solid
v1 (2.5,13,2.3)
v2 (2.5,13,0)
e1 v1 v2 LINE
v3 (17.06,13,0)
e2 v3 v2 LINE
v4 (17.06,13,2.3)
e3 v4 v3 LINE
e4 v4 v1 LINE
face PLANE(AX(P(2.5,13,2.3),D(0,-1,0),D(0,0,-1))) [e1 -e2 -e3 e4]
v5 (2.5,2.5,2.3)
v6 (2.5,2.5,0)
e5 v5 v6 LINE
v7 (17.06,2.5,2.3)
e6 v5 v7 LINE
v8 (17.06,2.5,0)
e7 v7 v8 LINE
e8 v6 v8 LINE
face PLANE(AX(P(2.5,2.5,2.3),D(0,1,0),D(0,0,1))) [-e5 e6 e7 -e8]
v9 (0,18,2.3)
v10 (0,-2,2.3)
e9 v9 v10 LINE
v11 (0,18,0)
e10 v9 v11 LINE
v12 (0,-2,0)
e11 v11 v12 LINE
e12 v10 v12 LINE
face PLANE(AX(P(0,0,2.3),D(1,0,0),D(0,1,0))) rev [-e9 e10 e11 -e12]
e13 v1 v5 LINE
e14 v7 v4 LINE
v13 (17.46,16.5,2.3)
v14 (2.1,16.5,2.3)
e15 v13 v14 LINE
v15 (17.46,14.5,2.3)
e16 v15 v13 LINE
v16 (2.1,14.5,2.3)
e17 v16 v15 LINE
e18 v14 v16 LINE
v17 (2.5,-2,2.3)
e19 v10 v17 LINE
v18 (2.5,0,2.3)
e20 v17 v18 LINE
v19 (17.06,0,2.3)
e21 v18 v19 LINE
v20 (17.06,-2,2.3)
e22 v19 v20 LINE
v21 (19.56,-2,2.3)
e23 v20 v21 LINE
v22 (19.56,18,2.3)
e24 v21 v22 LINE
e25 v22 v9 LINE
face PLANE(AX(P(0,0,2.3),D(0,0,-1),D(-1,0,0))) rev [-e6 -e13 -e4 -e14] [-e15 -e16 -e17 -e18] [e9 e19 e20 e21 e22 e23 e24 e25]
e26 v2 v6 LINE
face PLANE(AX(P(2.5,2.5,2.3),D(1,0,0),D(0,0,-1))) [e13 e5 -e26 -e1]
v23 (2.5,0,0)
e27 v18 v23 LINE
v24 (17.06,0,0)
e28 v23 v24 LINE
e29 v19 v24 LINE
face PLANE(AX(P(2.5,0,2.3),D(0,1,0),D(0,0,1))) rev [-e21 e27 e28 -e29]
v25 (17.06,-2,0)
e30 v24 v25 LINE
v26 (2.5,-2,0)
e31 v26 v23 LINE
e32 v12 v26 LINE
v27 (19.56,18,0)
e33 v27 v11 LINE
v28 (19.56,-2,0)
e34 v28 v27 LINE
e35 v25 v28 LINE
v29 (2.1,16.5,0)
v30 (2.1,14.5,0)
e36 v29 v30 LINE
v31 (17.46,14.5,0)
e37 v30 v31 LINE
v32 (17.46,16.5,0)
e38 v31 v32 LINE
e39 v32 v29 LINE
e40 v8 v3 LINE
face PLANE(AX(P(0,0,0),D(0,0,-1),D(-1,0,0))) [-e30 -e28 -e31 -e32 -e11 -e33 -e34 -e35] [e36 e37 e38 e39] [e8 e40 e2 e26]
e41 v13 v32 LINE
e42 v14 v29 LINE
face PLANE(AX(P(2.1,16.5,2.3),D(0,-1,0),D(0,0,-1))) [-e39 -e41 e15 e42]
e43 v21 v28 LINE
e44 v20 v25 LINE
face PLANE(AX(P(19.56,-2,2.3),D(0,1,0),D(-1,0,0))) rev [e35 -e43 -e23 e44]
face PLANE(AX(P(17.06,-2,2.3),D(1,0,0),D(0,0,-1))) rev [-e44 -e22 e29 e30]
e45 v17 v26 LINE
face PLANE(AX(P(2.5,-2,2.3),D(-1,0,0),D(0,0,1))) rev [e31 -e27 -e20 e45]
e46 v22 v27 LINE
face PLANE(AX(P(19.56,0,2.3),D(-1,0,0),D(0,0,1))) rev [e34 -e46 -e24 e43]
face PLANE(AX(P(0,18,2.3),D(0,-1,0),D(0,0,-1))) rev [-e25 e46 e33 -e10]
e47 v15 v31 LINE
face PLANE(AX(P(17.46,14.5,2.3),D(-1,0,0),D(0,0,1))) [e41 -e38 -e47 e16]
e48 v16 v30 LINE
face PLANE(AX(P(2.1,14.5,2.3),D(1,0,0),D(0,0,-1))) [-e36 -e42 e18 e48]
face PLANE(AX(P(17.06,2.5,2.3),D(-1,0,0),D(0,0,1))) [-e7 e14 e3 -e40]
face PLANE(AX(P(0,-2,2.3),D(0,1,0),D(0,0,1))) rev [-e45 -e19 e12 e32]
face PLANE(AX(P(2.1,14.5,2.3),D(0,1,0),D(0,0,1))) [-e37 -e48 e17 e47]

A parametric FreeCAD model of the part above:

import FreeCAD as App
import Part
import Sketcher

V = App.Vector
Q = App.Units.Quantity


def add_polygon(sketch, points):
    """Adds a closed chain of lines whose ends are joined by coincident constraints."""
    first, n = sketch.GeometryCount, len(points)
    for a, b in zip(points, points[1:] + points[:1]):
        sketch.addGeometry(Part.LineSegment(App.Vector(*a, 0), App.Vector(*b, 0)), False)
    for i in range(n):
        sketch.addConstraint(Sketcher.Constraint("Coincident", first + i, 2, first + (i + 1) % n, 1))

doc = App.newDocument("Part")
body = doc.addObject("PartDesign::Body", "Body")

# Sketch on XY plane
sketch1 = body.newObject("Sketcher::SketchObject", "Sketch")
sketch1.AttachmentSupport = (doc.getObject("XY_Plane"), [""])
sketch1.MapMode = "FlatFace"
add_polygon(sketch1, [(0, -2), (2.5, -2), (2.5, 0), (17.1, 0), (17.1, -2), (19.6, -2), (19.6, 18), (0, 18)])  # lines 0-7
add_polygon(sketch1, [(17.1, 2.5), (2.5, 2.5), (2.5, 13), (17.1, 13)])  # lines 8-11
add_polygon(sketch1, [(17.5, 14.5), (2.1, 14.5), (2.1, 16.5), (17.5, 16.5)])  # lines 12-15
sketch1.addConstraint(Sketcher.Constraint("Horizontal", 0))
sketch1.addConstraint(Sketcher.Constraint("Vertical", 1))
sketch1.addConstraint(Sketcher.Constraint("Horizontal", 2))
sketch1.addConstraint(Sketcher.Constraint("Vertical", 3))
sketch1.addConstraint(Sketcher.Constraint("Horizontal", 4))
sketch1.addConstraint(Sketcher.Constraint("Vertical", 5))
sketch1.addConstraint(Sketcher.Constraint("Horizontal", 6))
sketch1.addConstraint(Sketcher.Constraint("Vertical", 7))
sketch1.addConstraint(Sketcher.Constraint("Horizontal", 8))
sketch1.addConstraint(Sketcher.Constraint("Vertical", 9))
sketch1.addConstraint(Sketcher.Constraint("Horizontal", 10))
sketch1.addConstraint(Sketcher.Constraint("Vertical", 11))
sketch1.addConstraint(Sketcher.Constraint("Horizontal", 12))
sketch1.addConstraint(Sketcher.Constraint("Vertical", 13))
sketch1.addConstraint(Sketcher.Constraint("Horizontal", 14))
sketch1.addConstraint(Sketcher.Constraint("Vertical", 15))
sketch1.addConstraint(Sketcher.Constraint("PointOnObject", 1, 2, -1))
sketch1.addConstraint(Sketcher.Constraint("PointOnObject", 6, 2, -2))
sketch1.addConstraint(Sketcher.Constraint("Horizontal", 0, 2, 3, 2))
sketch1.addConstraint(Sketcher.Constraint("Vertical", 1, 2, 8, 2))
sketch1.addConstraint(Sketcher.Constraint("Vertical", 3, 2, 10, 2))
sketch1.addConstraint(Sketcher.Constraint("Equal", 0, 4))
sketch1.addConstraint(Sketcher.Constraint("Equal", 3, 13))
sketch1.addConstraint(Sketcher.Constraint("DistanceY", 1, 1, 1, 2, Q("2 mm")))
sketch1.addConstraint(Sketcher.Constraint("DistanceY", 5, 1, 5, 2, Q("20 mm")))
sketch1.addConstraint(Sketcher.Constraint("DistanceX", 0, 1, 0, 2, Q("2.5 mm")))
sketch1.addConstraint(Sketcher.Constraint("DistanceY", 9, 1, 9, 2, Q("10.5 mm")))
sketch1.addConstraint(Sketcher.Constraint("DistanceY", -1, 1, 9, 2, Q("13 mm")))
sketch1.addConstraint(Sketcher.Constraint("DistanceY", 8, 2, 12, 2, Q("12 mm")))
sketch1.addConstraint(Sketcher.Constraint("DistanceX", 2, 1, 2, 2, Q("14.56 mm")))
sketch1.addConstraint(Sketcher.Constraint("DistanceX", 12, 2, 12, 1, Q("15.36 mm")))
sketch1.addConstraint(Sketcher.Constraint("DistanceX", -1, 1, 12, 2, Q("2.1 mm")))
pad1 = body.newObject("PartDesign::Pad", "Pad")
pad1.Profile = sketch1
pad1.Length = 2.3

doc.recompute()
